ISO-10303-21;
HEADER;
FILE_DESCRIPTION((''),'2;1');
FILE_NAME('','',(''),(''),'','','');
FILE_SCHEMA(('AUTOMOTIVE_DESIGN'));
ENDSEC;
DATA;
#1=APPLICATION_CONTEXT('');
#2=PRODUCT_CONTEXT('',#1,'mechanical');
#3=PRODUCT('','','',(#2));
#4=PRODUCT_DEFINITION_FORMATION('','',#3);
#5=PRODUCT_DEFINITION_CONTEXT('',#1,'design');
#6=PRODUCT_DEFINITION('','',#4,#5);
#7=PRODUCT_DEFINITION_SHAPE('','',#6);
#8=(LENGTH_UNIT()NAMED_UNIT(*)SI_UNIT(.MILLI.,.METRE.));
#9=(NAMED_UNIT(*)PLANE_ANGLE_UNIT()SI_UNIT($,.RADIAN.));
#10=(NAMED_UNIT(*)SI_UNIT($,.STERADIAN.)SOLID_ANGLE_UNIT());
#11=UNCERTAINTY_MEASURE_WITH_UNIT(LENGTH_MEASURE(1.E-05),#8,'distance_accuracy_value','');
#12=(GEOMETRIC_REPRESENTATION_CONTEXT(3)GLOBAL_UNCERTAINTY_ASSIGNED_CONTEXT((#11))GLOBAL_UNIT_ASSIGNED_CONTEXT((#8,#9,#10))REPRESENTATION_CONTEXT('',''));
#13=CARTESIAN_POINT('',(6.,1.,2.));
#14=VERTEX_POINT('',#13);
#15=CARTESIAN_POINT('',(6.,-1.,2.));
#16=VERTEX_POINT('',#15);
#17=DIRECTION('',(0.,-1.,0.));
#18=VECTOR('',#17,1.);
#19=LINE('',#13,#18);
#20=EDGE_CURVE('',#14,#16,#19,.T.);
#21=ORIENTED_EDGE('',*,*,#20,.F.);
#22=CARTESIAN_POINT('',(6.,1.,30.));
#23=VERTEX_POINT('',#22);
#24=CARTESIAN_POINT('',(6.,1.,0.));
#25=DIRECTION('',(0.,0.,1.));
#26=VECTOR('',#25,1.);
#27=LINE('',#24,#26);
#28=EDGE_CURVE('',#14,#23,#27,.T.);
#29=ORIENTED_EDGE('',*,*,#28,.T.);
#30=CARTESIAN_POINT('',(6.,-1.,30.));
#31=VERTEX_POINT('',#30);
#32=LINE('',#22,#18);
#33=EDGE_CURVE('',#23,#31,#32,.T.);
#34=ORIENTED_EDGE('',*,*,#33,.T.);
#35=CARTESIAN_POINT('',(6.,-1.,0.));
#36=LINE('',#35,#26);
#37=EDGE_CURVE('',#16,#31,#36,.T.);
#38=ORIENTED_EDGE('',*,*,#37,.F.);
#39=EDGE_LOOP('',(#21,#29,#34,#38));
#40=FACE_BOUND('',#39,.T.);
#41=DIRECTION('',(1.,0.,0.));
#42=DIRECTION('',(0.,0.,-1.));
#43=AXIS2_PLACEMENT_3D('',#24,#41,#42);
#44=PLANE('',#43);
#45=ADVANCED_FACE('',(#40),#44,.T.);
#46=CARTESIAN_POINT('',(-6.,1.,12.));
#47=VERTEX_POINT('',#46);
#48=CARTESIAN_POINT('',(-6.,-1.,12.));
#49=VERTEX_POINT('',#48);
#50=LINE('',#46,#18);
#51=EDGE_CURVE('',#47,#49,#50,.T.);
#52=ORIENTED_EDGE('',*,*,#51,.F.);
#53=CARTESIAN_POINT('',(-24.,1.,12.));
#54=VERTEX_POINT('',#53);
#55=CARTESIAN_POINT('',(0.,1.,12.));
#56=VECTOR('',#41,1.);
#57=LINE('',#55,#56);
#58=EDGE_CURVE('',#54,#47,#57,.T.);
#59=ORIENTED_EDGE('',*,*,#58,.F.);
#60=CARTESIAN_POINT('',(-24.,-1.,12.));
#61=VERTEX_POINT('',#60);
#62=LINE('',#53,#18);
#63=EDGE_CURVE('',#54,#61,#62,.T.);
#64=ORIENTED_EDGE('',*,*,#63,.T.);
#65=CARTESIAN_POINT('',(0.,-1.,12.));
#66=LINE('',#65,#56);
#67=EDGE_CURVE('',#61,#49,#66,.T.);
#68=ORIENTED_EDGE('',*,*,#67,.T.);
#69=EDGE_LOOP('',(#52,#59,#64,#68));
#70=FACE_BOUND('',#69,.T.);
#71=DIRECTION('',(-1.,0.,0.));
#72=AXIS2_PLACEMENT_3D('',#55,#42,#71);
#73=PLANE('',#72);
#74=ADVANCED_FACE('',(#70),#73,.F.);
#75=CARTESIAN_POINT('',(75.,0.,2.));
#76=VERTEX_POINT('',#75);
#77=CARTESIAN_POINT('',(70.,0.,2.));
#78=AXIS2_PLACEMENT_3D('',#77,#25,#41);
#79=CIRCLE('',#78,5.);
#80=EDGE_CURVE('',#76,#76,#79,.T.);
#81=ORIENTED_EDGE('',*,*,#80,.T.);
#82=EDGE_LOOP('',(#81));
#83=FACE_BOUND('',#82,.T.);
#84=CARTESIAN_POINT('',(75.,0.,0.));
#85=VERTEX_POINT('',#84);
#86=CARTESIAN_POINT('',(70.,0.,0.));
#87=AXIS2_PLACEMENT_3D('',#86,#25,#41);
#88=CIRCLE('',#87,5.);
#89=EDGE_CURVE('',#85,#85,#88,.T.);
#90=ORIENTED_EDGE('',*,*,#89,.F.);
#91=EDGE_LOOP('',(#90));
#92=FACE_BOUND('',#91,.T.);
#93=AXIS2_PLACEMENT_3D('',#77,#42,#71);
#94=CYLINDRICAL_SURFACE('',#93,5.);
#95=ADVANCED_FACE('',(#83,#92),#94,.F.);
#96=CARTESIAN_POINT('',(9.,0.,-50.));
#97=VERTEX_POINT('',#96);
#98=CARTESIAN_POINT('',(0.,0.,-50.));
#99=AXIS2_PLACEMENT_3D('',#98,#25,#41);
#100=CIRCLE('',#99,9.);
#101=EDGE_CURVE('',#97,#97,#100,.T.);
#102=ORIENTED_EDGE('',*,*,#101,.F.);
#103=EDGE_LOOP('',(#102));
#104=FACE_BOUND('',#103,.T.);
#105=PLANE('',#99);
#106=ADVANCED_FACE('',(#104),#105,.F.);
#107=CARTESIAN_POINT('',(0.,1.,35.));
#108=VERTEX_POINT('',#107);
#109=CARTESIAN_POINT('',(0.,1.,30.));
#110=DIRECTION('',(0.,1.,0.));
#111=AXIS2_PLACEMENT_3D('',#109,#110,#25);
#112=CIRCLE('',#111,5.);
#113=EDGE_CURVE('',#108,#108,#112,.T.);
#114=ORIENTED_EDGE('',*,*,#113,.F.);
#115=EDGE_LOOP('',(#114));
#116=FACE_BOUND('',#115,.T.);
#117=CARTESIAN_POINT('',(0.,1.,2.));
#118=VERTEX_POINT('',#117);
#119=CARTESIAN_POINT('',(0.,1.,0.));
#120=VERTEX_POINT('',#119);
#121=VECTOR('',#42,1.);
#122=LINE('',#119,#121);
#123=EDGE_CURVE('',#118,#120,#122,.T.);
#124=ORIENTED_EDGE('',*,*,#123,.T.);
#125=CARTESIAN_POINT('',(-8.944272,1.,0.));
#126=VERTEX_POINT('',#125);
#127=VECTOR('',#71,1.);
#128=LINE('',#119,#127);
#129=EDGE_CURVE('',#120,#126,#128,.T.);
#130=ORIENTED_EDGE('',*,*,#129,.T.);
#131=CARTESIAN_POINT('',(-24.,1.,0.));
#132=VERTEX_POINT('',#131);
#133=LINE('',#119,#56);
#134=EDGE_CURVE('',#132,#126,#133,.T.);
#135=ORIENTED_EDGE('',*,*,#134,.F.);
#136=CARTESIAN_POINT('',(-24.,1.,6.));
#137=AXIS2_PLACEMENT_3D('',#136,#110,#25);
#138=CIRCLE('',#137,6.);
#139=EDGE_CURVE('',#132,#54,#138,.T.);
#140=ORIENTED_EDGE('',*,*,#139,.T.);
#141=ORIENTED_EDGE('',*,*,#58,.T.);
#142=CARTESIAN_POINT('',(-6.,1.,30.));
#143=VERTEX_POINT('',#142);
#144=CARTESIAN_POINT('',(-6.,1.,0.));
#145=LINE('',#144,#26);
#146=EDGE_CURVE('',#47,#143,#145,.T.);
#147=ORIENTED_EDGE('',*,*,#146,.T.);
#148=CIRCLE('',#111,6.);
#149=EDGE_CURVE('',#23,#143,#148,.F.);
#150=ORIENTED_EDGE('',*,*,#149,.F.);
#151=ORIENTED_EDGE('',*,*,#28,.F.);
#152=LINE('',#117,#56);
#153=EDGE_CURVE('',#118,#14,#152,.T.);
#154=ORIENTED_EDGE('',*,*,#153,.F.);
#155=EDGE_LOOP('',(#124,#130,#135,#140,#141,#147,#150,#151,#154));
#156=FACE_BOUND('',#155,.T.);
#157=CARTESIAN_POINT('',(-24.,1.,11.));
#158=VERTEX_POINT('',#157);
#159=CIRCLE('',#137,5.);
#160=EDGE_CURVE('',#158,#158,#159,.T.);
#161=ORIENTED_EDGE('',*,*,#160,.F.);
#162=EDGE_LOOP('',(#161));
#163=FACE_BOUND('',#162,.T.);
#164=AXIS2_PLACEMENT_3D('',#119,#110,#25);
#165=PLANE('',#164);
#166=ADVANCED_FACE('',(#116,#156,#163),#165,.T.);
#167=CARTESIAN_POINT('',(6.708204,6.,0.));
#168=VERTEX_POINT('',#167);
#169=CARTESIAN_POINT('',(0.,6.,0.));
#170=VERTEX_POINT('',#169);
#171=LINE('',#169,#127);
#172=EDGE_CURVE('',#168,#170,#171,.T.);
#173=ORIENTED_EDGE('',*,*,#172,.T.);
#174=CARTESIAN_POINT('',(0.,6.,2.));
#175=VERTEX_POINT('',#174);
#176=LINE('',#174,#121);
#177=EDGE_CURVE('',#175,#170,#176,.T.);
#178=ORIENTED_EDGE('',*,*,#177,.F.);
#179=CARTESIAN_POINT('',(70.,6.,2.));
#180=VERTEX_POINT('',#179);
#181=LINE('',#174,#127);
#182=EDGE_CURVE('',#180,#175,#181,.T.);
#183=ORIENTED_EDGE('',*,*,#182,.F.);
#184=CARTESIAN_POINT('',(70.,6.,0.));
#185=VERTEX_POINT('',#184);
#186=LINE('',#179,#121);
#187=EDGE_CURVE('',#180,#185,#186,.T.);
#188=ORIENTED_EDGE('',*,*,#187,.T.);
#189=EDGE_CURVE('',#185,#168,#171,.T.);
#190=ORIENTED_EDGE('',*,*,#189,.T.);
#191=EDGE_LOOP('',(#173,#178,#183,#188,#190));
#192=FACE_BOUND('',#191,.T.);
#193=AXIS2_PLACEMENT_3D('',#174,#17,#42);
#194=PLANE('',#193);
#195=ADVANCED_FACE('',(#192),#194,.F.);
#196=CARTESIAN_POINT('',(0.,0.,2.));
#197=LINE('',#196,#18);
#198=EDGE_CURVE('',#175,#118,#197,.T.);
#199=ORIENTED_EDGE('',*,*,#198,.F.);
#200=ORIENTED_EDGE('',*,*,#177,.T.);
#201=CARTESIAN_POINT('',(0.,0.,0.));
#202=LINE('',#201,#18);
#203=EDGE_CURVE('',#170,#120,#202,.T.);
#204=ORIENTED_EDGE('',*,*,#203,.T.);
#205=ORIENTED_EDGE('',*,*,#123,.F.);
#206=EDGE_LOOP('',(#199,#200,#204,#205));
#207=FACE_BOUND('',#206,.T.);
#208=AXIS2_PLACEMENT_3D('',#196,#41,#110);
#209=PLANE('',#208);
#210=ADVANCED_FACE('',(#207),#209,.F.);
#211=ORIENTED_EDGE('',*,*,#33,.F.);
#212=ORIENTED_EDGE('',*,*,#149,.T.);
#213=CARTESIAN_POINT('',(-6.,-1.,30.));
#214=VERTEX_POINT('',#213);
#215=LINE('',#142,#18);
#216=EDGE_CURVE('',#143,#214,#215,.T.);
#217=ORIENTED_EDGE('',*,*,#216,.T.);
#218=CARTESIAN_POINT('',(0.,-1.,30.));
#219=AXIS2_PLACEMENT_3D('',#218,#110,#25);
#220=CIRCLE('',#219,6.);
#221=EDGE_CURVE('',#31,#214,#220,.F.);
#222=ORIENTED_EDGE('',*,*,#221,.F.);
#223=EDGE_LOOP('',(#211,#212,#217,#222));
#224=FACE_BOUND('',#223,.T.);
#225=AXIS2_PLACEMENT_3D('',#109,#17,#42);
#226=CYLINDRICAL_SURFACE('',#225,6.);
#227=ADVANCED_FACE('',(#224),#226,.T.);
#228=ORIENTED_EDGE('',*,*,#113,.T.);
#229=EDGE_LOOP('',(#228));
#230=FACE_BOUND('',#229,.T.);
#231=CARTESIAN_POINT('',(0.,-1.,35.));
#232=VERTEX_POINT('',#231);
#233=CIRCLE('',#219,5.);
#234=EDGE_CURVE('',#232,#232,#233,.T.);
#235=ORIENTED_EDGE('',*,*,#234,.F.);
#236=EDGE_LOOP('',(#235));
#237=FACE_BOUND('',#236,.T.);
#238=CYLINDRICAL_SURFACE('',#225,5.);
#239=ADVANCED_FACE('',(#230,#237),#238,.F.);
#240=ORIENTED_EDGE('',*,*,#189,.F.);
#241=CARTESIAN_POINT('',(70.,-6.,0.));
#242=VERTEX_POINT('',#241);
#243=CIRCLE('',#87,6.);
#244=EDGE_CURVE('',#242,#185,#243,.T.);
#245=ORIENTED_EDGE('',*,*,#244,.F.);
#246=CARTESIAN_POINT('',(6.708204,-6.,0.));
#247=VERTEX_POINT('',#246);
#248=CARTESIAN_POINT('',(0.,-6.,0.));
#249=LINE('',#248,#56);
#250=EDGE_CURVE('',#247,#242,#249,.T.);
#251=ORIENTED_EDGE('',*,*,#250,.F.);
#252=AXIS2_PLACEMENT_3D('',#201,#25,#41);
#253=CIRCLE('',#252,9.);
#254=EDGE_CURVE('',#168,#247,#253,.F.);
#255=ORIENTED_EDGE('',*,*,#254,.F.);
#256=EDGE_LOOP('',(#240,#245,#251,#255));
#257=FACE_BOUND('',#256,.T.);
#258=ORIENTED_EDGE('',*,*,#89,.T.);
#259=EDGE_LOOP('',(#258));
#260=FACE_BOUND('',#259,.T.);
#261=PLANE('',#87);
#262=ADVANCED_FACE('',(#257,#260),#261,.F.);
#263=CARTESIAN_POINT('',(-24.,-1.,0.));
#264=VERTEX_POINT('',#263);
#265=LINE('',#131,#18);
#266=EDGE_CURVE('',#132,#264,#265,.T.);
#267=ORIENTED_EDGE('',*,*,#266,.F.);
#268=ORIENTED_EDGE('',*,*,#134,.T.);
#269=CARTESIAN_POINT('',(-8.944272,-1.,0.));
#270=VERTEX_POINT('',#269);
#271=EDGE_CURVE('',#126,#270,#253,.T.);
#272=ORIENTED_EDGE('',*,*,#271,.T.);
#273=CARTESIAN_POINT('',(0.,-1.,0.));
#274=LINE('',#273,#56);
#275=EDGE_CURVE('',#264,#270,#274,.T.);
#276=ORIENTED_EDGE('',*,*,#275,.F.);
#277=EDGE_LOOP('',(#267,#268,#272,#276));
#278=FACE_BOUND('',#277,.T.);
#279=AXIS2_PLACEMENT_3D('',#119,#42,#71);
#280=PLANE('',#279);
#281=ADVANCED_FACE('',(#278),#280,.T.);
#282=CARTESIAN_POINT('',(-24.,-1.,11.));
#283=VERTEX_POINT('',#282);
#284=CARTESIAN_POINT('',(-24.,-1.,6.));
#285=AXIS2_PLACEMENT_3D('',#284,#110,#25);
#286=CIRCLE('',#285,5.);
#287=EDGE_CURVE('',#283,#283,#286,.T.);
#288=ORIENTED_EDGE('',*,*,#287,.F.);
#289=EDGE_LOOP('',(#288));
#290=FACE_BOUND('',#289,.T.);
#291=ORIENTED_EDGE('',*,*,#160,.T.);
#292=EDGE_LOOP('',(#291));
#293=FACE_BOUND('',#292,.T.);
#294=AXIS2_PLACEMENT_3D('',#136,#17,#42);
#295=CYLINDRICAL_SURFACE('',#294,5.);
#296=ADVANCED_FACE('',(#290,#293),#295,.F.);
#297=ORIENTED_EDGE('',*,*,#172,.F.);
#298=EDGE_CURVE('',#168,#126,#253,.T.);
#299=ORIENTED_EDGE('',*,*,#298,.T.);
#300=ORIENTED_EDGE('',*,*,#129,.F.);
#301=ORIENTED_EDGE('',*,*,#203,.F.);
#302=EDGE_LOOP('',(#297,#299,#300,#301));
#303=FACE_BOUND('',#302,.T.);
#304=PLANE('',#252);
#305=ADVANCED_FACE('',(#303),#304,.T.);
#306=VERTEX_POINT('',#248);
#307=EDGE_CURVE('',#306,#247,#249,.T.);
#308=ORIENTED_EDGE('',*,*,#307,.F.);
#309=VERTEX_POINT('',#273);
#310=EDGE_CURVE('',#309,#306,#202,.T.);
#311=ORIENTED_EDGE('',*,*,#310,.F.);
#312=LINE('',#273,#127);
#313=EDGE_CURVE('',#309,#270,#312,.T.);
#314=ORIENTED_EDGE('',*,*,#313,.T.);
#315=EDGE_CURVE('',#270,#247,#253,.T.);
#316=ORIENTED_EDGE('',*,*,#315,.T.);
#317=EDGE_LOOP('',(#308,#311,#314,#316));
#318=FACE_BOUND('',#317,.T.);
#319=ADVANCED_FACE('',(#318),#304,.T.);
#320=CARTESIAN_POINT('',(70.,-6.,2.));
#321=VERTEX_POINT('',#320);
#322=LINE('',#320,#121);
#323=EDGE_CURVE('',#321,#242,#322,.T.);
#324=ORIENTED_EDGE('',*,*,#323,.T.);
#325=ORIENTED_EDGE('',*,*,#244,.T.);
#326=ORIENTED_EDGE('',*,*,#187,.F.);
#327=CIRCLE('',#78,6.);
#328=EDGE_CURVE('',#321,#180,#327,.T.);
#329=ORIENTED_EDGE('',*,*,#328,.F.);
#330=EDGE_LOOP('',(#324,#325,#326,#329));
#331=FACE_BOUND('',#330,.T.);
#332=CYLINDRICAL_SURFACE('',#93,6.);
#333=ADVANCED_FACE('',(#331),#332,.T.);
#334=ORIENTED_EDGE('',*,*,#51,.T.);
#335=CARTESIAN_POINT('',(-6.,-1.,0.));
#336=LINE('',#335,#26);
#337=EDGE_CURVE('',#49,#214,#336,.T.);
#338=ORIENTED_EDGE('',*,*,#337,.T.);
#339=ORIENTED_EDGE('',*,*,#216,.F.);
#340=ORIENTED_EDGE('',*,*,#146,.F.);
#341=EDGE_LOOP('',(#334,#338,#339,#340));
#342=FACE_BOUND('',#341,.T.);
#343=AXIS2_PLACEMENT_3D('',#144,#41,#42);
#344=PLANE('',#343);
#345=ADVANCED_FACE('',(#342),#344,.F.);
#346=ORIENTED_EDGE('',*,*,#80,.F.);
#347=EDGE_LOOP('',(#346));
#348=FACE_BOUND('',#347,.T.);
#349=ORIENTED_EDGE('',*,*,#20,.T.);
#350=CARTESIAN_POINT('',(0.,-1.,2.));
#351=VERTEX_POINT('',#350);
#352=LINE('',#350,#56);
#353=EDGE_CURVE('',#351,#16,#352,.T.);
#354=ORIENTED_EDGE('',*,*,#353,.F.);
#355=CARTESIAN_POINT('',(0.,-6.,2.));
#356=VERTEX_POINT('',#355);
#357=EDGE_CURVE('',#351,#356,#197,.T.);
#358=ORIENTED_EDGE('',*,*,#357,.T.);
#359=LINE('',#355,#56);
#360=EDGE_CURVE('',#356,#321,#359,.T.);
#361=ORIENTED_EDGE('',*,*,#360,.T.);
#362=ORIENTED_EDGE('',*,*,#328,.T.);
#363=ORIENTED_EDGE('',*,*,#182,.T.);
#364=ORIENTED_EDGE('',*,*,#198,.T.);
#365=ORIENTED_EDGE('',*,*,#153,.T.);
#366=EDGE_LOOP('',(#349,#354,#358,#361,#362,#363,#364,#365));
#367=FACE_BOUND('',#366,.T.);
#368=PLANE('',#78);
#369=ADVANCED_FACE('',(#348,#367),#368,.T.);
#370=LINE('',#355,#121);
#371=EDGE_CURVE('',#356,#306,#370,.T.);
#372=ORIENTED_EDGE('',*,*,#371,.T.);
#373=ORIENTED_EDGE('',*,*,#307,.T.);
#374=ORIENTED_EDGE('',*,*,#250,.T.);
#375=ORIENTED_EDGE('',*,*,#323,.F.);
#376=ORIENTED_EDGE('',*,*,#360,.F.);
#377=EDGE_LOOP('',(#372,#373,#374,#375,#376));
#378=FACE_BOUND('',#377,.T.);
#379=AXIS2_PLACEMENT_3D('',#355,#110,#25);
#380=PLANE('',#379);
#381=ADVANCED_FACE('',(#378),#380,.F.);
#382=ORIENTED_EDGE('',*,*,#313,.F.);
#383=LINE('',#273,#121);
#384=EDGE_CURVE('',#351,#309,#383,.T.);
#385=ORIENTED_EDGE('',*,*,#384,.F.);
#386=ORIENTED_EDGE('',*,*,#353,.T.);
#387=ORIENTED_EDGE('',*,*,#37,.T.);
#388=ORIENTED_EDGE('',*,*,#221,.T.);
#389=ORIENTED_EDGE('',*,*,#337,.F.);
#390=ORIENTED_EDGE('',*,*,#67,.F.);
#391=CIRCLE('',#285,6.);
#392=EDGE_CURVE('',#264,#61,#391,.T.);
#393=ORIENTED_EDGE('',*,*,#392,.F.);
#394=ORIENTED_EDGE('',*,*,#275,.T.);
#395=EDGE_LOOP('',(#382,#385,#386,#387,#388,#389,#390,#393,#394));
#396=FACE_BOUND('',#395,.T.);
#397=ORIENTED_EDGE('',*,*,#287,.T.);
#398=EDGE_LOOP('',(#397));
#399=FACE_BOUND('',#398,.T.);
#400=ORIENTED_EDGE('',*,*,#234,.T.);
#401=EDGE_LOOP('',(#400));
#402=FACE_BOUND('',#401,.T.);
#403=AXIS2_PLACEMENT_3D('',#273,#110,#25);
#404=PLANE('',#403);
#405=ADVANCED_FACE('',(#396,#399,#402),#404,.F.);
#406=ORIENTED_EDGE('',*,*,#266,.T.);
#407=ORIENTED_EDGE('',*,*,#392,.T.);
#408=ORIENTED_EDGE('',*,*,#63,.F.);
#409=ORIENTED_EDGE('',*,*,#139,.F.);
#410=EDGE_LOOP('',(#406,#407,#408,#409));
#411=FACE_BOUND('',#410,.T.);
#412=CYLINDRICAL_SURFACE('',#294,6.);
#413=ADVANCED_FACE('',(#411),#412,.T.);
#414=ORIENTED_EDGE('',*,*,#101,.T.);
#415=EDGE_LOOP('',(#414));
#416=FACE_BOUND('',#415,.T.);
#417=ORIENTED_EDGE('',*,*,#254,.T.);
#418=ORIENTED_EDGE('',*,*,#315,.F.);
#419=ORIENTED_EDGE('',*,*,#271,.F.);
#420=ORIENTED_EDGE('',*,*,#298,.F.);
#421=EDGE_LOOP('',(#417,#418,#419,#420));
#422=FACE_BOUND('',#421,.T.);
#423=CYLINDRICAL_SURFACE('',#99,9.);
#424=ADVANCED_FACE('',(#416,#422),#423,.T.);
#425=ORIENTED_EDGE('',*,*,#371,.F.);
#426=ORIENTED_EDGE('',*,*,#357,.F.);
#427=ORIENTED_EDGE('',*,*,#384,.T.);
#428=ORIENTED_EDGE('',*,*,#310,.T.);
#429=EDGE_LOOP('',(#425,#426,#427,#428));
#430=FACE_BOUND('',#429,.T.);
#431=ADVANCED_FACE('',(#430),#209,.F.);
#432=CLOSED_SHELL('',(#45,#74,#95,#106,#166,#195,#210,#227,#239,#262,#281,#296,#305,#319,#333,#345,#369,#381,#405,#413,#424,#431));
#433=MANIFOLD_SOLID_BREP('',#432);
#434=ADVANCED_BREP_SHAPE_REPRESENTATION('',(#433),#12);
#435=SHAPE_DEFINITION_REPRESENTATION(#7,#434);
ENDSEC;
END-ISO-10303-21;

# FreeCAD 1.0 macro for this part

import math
import FreeCAD as App
import Part
import Sketcher
from FreeCAD import Vector

doc = App.newDocument("Part")
body = doc.addObject("PartDesign::Body", "Body")

sketch1 = body.newObject("Sketcher::SketchObject", "Sketch")
sketch1.AttachmentSupport = (doc.getObject("XY_Plane"), [""])
sketch1.MapMode = "FlatFace"
sketch1.addGeometry(Part.Circle(Vector(0, 0, 0), Vector(0, 0, 1), 9), False)
sketch1.addConstraint(Sketcher.Constraint("Coincident", 0, 3, -1, 1))
sketch1.addConstraint(Sketcher.Constraint("Diameter", 0, 18.0))
pad1 = body.newObject("PartDesign::Pad", "Pad")
pad1.Profile = sketch1
pad1.Length = 50
pad1.Reversed = True
body2 = doc.addObject("PartDesign::Body", "Body001")

sketch2 = body2.newObject("Sketcher::SketchObject", "Sketch001")
sketch2.AttachmentSupport = (doc.getObject("XY_Plane001"), [""])
sketch2.MapMode = "FlatFace"
sketch2.addGeometry(Part.LineSegment(Vector(70, 6, 0), Vector(0, 6, 0)), False)
sketch2.addGeometry(Part.LineSegment(Vector(0, 6, 0), Vector(0, -6, 0)), False)
sketch2.addGeometry(Part.LineSegment(Vector(0, -6, 0), Vector(70, -6, 0)), False)
sketch2.addGeometry(Part.ArcOfCircle(Part.Circle(Vector(70, 0, 0), Vector(0, 0, 1), 6), math.radians(-90), math.radians(90)), False)
sketch2.addGeometry(Part.Circle(Vector(70, 0, 0), Vector(0, 0, 1), 5), False)
sketch2.addConstraint(Sketcher.Constraint("Coincident", 0, 2, 1, 1))
sketch2.addConstraint(Sketcher.Constraint("Coincident", 1, 2, 2, 1))
sketch2.addConstraint(Sketcher.Constraint("Tangent", 2, 2, 3, 1))
sketch2.addConstraint(Sketcher.Constraint("Tangent", 3, 2, 0, 1))
sketch2.addConstraint(Sketcher.Constraint("Horizontal", 0))
sketch2.addConstraint(Sketcher.Constraint("Vertical", 1))
sketch2.addConstraint(Sketcher.Constraint("Horizontal", 2))
sketch2.addConstraint(Sketcher.Constraint("Coincident", 4, 3, 3, 3))
sketch2.addConstraint(Sketcher.Constraint("Symmetric", 0, 2, 1, 2, -1, 1))
sketch2.addConstraint(Sketcher.Constraint("Diameter", 4, 10.0))
sketch2.addConstraint(Sketcher.Constraint("Radius", 3, 6.0))
sketch2.addConstraint(Sketcher.Constraint("DistanceX", 0, 2, 0, 1, 70.0))
pad2 = body2.newObject("PartDesign::Pad", "Pad001")
pad2.Profile = sketch2
pad2.Length = 2
doc.recompute()

boolean = body.newObject("PartDesign::Boolean", "Boolean")
boolean.Type = "Fuse"
boolean.addObjects([body2])

sketch3 = body.newObject("Sketcher::SketchObject", "Sketch002")
sketch3.AttachmentSupport = (doc.getObject("XZ_Plane"), [""])
sketch3.MapMode = "FlatFace"
sketch3.addGeometry(Part.LineSegment(Vector(6, 0, 0), Vector(-24, 0, 0)), False)
sketch3.addGeometry(Part.ArcOfCircle(Part.Circle(Vector(-24, 6, 0), Vector(0, 0, 1), 6), math.radians(90), math.radians(270)), False)
sketch3.addGeometry(Part.LineSegment(Vector(-24, 12, 0), Vector(-6, 12, 0)), False)
sketch3.addGeometry(Part.LineSegment(Vector(-6, 12, 0), Vector(-6, 30, 0)), False)
sketch3.addGeometry(Part.ArcOfCircle(Part.Circle(Vector(0, 30, 0), Vector(0, 0, 1), 6), math.radians(0), math.radians(180)), False)
sketch3.addGeometry(Part.LineSegment(Vector(6, 30, 0), Vector(6, 0, 0)), False)
sketch3.addGeometry(Part.Circle(Vector(0, 30, 0), Vector(0, 0, 1), 5), False)
sketch3.addGeometry(Part.Circle(Vector(-24, 6, 0), Vector(0, 0, 1), 5), False)
sketch3.addConstraint(Sketcher.Constraint("Tangent", 0, 2, 1, 2))
sketch3.addConstraint(Sketcher.Constraint("Tangent", 1, 1, 2, 1))
sketch3.addConstraint(Sketcher.Constraint("Coincident", 2, 2, 3, 1))
sketch3.addConstraint(Sketcher.Constraint("Tangent", 3, 2, 4, 2))
sketch3.addConstraint(Sketcher.Constraint("Tangent", 4, 1, 5, 1))
sketch3.addConstraint(Sketcher.Constraint("Coincident", 5, 2, 0, 1))
sketch3.addConstraint(Sketcher.Constraint("Horizontal", 0))
sketch3.addConstraint(Sketcher.Constraint("Horizontal", 2))
sketch3.addConstraint(Sketcher.Constraint("Vertical", 3))
sketch3.addConstraint(Sketcher.Constraint("Vertical", 5))
sketch3.addConstraint(Sketcher.Constraint("Coincident", 6, 3, 4, 3))
sketch3.addConstraint(Sketcher.Constraint("Coincident", 7, 3, 1, 3))
sketch3.addConstraint(Sketcher.Constraint("Equal", 1, 4))
sketch3.addConstraint(Sketcher.Constraint("Equal", 6, 7))
sketch3.addConstraint(Sketcher.Constraint("PointOnObject", 4, 3, -2))
sketch3.addConstraint(Sketcher.Constraint("PointOnObject", 0, 2, -1))
sketch3.addConstraint(Sketcher.Constraint("Equal", 2, 3))
sketch3.addConstraint(Sketcher.Constraint("Diameter", 6, 10.0))
sketch3.addConstraint(Sketcher.Constraint("Radius", 1, 6.0))
sketch3.addConstraint(Sketcher.Constraint("DistanceX", 0, 2, 0, 1, 30.0))
pad3 = body.newObject("PartDesign::Pad", "Pad002")
pad3.Profile = sketch3
pad3.Length = 2
pad3.Midplane = True

doc.recompute()
